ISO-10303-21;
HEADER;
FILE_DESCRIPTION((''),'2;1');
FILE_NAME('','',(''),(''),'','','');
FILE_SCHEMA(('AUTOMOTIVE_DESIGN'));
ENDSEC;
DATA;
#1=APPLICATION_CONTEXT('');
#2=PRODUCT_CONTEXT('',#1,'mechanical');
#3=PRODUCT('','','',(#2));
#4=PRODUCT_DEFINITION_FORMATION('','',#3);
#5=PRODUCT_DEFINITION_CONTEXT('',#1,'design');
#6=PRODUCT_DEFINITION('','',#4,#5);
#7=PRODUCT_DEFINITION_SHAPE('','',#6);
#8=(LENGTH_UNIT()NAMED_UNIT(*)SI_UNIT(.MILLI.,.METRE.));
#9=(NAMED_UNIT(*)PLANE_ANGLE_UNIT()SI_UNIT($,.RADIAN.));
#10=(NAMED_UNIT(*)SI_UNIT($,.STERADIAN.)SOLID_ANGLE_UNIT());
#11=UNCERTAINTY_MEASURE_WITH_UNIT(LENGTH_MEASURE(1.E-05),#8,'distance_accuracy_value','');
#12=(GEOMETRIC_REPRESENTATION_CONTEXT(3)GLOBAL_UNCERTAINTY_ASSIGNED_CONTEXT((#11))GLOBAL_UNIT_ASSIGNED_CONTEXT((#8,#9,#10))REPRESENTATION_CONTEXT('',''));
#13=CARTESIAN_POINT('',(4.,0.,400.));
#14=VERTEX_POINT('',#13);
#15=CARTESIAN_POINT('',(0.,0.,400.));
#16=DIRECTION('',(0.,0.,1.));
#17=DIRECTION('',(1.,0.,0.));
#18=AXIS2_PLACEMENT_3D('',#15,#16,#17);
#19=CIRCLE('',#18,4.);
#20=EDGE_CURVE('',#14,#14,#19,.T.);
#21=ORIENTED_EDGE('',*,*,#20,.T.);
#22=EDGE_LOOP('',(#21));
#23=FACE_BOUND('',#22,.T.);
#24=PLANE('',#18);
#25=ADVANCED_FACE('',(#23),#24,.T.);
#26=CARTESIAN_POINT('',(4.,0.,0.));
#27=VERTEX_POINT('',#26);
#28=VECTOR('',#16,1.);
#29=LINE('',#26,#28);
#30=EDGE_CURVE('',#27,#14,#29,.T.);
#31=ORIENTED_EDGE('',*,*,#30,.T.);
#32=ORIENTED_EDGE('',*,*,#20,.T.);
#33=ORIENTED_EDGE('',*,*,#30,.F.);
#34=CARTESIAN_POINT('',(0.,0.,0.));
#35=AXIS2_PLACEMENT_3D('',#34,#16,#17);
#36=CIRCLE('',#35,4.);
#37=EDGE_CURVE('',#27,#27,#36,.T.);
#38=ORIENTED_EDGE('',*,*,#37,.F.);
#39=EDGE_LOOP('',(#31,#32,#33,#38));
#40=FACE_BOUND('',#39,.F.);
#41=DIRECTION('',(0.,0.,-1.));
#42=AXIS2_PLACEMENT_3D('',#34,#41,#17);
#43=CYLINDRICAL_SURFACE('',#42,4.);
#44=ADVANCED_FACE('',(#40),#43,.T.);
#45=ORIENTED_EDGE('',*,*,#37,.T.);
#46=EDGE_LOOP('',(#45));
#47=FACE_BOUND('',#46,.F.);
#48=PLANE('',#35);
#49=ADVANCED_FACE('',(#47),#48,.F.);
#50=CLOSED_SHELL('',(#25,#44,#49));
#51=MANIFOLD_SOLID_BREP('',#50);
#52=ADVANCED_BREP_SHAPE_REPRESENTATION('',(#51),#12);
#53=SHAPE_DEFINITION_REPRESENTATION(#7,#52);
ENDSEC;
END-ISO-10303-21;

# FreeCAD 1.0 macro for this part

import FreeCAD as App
import Part
import Sketcher

V = App.Vector
Q = App.Units.Quantity

doc = App.newDocument("Part")
params = doc.addObject("Spreadsheet::Sheet", "Params")
for row, (alias, value) in enumerate([
    ("sketch1_diameter", "8 mm"),
    ("pad1_length", "400 mm"),
], start=1):
    params.set(f"A{row}", alias)
    params.set(f"B{row}", "=" + value)
    params.setAlias(f"B{row}", alias)

body = doc.addObject("PartDesign::Body", "Body")

sketch1 = doc.addObject("Sketcher::SketchObject", "Sketch")
body.addObject(sketch1)
sketch1.AttachmentSupport = (doc.XY_Plane, [""])
sketch1.MapMode = "FlatFace"
sketch1.addGeometry(Part.Circle(V(0, 0, 0), V(0, 0, 1), 4), False)
sketch1.addConstraint(Sketcher.Constraint("Coincident", 0, 3, -1, 1))
sketch1.addConstraint(Sketcher.Constraint("Diameter", 0, Q("8 mm")))
sketch1.setExpression("Constraints[1]", "Params.sketch1_diameter")
pad1 = doc.addObject("PartDesign::Pad", "Pad")
body.addObject(pad1)
pad1.Profile = sketch1
pad1.setExpression("Length", "Params.pad1_length")

doc.recompute()
